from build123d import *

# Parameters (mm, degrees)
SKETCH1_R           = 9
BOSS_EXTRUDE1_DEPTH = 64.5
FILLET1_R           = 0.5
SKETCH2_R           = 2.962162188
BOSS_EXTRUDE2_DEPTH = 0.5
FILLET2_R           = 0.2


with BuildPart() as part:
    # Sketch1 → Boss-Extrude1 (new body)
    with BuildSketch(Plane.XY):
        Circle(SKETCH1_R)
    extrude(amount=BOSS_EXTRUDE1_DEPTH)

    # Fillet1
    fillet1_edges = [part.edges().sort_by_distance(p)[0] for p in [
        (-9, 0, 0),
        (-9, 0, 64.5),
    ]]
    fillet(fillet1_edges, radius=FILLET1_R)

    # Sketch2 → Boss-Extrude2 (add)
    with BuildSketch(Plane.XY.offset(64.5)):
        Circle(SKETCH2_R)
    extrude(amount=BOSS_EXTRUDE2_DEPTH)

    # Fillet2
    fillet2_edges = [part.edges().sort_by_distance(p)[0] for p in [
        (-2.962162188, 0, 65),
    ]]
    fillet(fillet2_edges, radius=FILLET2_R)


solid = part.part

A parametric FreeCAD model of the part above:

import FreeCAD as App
import Part
import Sketcher

V = App.Vector
Q = App.Units.Quantity


def edges_at(feature, points):
    """Names of the edges that pass closest to the given points."""
    edges = feature.Shape.Edges
    near = lambda p: min(range(len(edges)), key=lambda i: edges[i].distToShape(Part.Vertex(*p))[0])
    return sorted({f"Edge{near(p) + 1}" for p in points})

doc = App.newDocument("Part")
body = doc.addObject("PartDesign::Body", "Body")

# Sketch on XY plane
sketch1 = body.newObject("Sketcher::SketchObject", "Sketch")
sketch1.AttachmentSupport = (doc.getObject("XY_Plane"), [""])
sketch1.MapMode = "FlatFace"
sketch1.addGeometry(Part.Circle(V(0, 0, 0), V(0, 0, 1), 9), False)
sketch1.addConstraint([
    Sketcher.Constraint("Coincident", 0, 3, -1, 1),
    Sketcher.Constraint("Diameter", 0, Q("18 mm")),
])
pad1 = body.newObject("PartDesign::Pad", "Pad")
pad1.Profile = sketch1
pad1.Length = 64.5
doc.recompute()

fillet = body.newObject("PartDesign::Fillet", "Fillet")
fillet.Base = (pad1, edges_at(pad1, [(-9, 0, 0), (-9, 0, 64.5)]))
fillet.Radius = 0.5

# Sketch on XY plane
sketch2 = body.newObject("Sketcher::SketchObject", "Sketch001")
sketch2.AttachmentSupport = (doc.getObject("XY_Plane"), [""])
sketch2.MapMode = "FlatFace"
sketch2.AttachmentOffset = App.Placement(V(0, 0, 64.5), App.Rotation())
sketch2.addGeometry(Part.Circle(V(0, 0, 0), V(0, 0, 1), 3), False)
sketch2.addConstraint([
    Sketcher.Constraint("Coincident", 0, 3, -1, 1),
    Sketcher.Constraint("Diameter", 0, Q("5.924324 mm")),
])
pad2 = body.newObject("PartDesign::Pad", "Pad001")
pad2.Profile = sketch2
pad2.Length = 0.5
doc.recompute()

fillet2 = body.newObject("PartDesign::Fillet", "Fillet001")
fillet2.Base = (pad2, edges_at(pad2, [(-2.962, 0, 65)]))
fillet2.Radius = 0.2

doc.recompute()
